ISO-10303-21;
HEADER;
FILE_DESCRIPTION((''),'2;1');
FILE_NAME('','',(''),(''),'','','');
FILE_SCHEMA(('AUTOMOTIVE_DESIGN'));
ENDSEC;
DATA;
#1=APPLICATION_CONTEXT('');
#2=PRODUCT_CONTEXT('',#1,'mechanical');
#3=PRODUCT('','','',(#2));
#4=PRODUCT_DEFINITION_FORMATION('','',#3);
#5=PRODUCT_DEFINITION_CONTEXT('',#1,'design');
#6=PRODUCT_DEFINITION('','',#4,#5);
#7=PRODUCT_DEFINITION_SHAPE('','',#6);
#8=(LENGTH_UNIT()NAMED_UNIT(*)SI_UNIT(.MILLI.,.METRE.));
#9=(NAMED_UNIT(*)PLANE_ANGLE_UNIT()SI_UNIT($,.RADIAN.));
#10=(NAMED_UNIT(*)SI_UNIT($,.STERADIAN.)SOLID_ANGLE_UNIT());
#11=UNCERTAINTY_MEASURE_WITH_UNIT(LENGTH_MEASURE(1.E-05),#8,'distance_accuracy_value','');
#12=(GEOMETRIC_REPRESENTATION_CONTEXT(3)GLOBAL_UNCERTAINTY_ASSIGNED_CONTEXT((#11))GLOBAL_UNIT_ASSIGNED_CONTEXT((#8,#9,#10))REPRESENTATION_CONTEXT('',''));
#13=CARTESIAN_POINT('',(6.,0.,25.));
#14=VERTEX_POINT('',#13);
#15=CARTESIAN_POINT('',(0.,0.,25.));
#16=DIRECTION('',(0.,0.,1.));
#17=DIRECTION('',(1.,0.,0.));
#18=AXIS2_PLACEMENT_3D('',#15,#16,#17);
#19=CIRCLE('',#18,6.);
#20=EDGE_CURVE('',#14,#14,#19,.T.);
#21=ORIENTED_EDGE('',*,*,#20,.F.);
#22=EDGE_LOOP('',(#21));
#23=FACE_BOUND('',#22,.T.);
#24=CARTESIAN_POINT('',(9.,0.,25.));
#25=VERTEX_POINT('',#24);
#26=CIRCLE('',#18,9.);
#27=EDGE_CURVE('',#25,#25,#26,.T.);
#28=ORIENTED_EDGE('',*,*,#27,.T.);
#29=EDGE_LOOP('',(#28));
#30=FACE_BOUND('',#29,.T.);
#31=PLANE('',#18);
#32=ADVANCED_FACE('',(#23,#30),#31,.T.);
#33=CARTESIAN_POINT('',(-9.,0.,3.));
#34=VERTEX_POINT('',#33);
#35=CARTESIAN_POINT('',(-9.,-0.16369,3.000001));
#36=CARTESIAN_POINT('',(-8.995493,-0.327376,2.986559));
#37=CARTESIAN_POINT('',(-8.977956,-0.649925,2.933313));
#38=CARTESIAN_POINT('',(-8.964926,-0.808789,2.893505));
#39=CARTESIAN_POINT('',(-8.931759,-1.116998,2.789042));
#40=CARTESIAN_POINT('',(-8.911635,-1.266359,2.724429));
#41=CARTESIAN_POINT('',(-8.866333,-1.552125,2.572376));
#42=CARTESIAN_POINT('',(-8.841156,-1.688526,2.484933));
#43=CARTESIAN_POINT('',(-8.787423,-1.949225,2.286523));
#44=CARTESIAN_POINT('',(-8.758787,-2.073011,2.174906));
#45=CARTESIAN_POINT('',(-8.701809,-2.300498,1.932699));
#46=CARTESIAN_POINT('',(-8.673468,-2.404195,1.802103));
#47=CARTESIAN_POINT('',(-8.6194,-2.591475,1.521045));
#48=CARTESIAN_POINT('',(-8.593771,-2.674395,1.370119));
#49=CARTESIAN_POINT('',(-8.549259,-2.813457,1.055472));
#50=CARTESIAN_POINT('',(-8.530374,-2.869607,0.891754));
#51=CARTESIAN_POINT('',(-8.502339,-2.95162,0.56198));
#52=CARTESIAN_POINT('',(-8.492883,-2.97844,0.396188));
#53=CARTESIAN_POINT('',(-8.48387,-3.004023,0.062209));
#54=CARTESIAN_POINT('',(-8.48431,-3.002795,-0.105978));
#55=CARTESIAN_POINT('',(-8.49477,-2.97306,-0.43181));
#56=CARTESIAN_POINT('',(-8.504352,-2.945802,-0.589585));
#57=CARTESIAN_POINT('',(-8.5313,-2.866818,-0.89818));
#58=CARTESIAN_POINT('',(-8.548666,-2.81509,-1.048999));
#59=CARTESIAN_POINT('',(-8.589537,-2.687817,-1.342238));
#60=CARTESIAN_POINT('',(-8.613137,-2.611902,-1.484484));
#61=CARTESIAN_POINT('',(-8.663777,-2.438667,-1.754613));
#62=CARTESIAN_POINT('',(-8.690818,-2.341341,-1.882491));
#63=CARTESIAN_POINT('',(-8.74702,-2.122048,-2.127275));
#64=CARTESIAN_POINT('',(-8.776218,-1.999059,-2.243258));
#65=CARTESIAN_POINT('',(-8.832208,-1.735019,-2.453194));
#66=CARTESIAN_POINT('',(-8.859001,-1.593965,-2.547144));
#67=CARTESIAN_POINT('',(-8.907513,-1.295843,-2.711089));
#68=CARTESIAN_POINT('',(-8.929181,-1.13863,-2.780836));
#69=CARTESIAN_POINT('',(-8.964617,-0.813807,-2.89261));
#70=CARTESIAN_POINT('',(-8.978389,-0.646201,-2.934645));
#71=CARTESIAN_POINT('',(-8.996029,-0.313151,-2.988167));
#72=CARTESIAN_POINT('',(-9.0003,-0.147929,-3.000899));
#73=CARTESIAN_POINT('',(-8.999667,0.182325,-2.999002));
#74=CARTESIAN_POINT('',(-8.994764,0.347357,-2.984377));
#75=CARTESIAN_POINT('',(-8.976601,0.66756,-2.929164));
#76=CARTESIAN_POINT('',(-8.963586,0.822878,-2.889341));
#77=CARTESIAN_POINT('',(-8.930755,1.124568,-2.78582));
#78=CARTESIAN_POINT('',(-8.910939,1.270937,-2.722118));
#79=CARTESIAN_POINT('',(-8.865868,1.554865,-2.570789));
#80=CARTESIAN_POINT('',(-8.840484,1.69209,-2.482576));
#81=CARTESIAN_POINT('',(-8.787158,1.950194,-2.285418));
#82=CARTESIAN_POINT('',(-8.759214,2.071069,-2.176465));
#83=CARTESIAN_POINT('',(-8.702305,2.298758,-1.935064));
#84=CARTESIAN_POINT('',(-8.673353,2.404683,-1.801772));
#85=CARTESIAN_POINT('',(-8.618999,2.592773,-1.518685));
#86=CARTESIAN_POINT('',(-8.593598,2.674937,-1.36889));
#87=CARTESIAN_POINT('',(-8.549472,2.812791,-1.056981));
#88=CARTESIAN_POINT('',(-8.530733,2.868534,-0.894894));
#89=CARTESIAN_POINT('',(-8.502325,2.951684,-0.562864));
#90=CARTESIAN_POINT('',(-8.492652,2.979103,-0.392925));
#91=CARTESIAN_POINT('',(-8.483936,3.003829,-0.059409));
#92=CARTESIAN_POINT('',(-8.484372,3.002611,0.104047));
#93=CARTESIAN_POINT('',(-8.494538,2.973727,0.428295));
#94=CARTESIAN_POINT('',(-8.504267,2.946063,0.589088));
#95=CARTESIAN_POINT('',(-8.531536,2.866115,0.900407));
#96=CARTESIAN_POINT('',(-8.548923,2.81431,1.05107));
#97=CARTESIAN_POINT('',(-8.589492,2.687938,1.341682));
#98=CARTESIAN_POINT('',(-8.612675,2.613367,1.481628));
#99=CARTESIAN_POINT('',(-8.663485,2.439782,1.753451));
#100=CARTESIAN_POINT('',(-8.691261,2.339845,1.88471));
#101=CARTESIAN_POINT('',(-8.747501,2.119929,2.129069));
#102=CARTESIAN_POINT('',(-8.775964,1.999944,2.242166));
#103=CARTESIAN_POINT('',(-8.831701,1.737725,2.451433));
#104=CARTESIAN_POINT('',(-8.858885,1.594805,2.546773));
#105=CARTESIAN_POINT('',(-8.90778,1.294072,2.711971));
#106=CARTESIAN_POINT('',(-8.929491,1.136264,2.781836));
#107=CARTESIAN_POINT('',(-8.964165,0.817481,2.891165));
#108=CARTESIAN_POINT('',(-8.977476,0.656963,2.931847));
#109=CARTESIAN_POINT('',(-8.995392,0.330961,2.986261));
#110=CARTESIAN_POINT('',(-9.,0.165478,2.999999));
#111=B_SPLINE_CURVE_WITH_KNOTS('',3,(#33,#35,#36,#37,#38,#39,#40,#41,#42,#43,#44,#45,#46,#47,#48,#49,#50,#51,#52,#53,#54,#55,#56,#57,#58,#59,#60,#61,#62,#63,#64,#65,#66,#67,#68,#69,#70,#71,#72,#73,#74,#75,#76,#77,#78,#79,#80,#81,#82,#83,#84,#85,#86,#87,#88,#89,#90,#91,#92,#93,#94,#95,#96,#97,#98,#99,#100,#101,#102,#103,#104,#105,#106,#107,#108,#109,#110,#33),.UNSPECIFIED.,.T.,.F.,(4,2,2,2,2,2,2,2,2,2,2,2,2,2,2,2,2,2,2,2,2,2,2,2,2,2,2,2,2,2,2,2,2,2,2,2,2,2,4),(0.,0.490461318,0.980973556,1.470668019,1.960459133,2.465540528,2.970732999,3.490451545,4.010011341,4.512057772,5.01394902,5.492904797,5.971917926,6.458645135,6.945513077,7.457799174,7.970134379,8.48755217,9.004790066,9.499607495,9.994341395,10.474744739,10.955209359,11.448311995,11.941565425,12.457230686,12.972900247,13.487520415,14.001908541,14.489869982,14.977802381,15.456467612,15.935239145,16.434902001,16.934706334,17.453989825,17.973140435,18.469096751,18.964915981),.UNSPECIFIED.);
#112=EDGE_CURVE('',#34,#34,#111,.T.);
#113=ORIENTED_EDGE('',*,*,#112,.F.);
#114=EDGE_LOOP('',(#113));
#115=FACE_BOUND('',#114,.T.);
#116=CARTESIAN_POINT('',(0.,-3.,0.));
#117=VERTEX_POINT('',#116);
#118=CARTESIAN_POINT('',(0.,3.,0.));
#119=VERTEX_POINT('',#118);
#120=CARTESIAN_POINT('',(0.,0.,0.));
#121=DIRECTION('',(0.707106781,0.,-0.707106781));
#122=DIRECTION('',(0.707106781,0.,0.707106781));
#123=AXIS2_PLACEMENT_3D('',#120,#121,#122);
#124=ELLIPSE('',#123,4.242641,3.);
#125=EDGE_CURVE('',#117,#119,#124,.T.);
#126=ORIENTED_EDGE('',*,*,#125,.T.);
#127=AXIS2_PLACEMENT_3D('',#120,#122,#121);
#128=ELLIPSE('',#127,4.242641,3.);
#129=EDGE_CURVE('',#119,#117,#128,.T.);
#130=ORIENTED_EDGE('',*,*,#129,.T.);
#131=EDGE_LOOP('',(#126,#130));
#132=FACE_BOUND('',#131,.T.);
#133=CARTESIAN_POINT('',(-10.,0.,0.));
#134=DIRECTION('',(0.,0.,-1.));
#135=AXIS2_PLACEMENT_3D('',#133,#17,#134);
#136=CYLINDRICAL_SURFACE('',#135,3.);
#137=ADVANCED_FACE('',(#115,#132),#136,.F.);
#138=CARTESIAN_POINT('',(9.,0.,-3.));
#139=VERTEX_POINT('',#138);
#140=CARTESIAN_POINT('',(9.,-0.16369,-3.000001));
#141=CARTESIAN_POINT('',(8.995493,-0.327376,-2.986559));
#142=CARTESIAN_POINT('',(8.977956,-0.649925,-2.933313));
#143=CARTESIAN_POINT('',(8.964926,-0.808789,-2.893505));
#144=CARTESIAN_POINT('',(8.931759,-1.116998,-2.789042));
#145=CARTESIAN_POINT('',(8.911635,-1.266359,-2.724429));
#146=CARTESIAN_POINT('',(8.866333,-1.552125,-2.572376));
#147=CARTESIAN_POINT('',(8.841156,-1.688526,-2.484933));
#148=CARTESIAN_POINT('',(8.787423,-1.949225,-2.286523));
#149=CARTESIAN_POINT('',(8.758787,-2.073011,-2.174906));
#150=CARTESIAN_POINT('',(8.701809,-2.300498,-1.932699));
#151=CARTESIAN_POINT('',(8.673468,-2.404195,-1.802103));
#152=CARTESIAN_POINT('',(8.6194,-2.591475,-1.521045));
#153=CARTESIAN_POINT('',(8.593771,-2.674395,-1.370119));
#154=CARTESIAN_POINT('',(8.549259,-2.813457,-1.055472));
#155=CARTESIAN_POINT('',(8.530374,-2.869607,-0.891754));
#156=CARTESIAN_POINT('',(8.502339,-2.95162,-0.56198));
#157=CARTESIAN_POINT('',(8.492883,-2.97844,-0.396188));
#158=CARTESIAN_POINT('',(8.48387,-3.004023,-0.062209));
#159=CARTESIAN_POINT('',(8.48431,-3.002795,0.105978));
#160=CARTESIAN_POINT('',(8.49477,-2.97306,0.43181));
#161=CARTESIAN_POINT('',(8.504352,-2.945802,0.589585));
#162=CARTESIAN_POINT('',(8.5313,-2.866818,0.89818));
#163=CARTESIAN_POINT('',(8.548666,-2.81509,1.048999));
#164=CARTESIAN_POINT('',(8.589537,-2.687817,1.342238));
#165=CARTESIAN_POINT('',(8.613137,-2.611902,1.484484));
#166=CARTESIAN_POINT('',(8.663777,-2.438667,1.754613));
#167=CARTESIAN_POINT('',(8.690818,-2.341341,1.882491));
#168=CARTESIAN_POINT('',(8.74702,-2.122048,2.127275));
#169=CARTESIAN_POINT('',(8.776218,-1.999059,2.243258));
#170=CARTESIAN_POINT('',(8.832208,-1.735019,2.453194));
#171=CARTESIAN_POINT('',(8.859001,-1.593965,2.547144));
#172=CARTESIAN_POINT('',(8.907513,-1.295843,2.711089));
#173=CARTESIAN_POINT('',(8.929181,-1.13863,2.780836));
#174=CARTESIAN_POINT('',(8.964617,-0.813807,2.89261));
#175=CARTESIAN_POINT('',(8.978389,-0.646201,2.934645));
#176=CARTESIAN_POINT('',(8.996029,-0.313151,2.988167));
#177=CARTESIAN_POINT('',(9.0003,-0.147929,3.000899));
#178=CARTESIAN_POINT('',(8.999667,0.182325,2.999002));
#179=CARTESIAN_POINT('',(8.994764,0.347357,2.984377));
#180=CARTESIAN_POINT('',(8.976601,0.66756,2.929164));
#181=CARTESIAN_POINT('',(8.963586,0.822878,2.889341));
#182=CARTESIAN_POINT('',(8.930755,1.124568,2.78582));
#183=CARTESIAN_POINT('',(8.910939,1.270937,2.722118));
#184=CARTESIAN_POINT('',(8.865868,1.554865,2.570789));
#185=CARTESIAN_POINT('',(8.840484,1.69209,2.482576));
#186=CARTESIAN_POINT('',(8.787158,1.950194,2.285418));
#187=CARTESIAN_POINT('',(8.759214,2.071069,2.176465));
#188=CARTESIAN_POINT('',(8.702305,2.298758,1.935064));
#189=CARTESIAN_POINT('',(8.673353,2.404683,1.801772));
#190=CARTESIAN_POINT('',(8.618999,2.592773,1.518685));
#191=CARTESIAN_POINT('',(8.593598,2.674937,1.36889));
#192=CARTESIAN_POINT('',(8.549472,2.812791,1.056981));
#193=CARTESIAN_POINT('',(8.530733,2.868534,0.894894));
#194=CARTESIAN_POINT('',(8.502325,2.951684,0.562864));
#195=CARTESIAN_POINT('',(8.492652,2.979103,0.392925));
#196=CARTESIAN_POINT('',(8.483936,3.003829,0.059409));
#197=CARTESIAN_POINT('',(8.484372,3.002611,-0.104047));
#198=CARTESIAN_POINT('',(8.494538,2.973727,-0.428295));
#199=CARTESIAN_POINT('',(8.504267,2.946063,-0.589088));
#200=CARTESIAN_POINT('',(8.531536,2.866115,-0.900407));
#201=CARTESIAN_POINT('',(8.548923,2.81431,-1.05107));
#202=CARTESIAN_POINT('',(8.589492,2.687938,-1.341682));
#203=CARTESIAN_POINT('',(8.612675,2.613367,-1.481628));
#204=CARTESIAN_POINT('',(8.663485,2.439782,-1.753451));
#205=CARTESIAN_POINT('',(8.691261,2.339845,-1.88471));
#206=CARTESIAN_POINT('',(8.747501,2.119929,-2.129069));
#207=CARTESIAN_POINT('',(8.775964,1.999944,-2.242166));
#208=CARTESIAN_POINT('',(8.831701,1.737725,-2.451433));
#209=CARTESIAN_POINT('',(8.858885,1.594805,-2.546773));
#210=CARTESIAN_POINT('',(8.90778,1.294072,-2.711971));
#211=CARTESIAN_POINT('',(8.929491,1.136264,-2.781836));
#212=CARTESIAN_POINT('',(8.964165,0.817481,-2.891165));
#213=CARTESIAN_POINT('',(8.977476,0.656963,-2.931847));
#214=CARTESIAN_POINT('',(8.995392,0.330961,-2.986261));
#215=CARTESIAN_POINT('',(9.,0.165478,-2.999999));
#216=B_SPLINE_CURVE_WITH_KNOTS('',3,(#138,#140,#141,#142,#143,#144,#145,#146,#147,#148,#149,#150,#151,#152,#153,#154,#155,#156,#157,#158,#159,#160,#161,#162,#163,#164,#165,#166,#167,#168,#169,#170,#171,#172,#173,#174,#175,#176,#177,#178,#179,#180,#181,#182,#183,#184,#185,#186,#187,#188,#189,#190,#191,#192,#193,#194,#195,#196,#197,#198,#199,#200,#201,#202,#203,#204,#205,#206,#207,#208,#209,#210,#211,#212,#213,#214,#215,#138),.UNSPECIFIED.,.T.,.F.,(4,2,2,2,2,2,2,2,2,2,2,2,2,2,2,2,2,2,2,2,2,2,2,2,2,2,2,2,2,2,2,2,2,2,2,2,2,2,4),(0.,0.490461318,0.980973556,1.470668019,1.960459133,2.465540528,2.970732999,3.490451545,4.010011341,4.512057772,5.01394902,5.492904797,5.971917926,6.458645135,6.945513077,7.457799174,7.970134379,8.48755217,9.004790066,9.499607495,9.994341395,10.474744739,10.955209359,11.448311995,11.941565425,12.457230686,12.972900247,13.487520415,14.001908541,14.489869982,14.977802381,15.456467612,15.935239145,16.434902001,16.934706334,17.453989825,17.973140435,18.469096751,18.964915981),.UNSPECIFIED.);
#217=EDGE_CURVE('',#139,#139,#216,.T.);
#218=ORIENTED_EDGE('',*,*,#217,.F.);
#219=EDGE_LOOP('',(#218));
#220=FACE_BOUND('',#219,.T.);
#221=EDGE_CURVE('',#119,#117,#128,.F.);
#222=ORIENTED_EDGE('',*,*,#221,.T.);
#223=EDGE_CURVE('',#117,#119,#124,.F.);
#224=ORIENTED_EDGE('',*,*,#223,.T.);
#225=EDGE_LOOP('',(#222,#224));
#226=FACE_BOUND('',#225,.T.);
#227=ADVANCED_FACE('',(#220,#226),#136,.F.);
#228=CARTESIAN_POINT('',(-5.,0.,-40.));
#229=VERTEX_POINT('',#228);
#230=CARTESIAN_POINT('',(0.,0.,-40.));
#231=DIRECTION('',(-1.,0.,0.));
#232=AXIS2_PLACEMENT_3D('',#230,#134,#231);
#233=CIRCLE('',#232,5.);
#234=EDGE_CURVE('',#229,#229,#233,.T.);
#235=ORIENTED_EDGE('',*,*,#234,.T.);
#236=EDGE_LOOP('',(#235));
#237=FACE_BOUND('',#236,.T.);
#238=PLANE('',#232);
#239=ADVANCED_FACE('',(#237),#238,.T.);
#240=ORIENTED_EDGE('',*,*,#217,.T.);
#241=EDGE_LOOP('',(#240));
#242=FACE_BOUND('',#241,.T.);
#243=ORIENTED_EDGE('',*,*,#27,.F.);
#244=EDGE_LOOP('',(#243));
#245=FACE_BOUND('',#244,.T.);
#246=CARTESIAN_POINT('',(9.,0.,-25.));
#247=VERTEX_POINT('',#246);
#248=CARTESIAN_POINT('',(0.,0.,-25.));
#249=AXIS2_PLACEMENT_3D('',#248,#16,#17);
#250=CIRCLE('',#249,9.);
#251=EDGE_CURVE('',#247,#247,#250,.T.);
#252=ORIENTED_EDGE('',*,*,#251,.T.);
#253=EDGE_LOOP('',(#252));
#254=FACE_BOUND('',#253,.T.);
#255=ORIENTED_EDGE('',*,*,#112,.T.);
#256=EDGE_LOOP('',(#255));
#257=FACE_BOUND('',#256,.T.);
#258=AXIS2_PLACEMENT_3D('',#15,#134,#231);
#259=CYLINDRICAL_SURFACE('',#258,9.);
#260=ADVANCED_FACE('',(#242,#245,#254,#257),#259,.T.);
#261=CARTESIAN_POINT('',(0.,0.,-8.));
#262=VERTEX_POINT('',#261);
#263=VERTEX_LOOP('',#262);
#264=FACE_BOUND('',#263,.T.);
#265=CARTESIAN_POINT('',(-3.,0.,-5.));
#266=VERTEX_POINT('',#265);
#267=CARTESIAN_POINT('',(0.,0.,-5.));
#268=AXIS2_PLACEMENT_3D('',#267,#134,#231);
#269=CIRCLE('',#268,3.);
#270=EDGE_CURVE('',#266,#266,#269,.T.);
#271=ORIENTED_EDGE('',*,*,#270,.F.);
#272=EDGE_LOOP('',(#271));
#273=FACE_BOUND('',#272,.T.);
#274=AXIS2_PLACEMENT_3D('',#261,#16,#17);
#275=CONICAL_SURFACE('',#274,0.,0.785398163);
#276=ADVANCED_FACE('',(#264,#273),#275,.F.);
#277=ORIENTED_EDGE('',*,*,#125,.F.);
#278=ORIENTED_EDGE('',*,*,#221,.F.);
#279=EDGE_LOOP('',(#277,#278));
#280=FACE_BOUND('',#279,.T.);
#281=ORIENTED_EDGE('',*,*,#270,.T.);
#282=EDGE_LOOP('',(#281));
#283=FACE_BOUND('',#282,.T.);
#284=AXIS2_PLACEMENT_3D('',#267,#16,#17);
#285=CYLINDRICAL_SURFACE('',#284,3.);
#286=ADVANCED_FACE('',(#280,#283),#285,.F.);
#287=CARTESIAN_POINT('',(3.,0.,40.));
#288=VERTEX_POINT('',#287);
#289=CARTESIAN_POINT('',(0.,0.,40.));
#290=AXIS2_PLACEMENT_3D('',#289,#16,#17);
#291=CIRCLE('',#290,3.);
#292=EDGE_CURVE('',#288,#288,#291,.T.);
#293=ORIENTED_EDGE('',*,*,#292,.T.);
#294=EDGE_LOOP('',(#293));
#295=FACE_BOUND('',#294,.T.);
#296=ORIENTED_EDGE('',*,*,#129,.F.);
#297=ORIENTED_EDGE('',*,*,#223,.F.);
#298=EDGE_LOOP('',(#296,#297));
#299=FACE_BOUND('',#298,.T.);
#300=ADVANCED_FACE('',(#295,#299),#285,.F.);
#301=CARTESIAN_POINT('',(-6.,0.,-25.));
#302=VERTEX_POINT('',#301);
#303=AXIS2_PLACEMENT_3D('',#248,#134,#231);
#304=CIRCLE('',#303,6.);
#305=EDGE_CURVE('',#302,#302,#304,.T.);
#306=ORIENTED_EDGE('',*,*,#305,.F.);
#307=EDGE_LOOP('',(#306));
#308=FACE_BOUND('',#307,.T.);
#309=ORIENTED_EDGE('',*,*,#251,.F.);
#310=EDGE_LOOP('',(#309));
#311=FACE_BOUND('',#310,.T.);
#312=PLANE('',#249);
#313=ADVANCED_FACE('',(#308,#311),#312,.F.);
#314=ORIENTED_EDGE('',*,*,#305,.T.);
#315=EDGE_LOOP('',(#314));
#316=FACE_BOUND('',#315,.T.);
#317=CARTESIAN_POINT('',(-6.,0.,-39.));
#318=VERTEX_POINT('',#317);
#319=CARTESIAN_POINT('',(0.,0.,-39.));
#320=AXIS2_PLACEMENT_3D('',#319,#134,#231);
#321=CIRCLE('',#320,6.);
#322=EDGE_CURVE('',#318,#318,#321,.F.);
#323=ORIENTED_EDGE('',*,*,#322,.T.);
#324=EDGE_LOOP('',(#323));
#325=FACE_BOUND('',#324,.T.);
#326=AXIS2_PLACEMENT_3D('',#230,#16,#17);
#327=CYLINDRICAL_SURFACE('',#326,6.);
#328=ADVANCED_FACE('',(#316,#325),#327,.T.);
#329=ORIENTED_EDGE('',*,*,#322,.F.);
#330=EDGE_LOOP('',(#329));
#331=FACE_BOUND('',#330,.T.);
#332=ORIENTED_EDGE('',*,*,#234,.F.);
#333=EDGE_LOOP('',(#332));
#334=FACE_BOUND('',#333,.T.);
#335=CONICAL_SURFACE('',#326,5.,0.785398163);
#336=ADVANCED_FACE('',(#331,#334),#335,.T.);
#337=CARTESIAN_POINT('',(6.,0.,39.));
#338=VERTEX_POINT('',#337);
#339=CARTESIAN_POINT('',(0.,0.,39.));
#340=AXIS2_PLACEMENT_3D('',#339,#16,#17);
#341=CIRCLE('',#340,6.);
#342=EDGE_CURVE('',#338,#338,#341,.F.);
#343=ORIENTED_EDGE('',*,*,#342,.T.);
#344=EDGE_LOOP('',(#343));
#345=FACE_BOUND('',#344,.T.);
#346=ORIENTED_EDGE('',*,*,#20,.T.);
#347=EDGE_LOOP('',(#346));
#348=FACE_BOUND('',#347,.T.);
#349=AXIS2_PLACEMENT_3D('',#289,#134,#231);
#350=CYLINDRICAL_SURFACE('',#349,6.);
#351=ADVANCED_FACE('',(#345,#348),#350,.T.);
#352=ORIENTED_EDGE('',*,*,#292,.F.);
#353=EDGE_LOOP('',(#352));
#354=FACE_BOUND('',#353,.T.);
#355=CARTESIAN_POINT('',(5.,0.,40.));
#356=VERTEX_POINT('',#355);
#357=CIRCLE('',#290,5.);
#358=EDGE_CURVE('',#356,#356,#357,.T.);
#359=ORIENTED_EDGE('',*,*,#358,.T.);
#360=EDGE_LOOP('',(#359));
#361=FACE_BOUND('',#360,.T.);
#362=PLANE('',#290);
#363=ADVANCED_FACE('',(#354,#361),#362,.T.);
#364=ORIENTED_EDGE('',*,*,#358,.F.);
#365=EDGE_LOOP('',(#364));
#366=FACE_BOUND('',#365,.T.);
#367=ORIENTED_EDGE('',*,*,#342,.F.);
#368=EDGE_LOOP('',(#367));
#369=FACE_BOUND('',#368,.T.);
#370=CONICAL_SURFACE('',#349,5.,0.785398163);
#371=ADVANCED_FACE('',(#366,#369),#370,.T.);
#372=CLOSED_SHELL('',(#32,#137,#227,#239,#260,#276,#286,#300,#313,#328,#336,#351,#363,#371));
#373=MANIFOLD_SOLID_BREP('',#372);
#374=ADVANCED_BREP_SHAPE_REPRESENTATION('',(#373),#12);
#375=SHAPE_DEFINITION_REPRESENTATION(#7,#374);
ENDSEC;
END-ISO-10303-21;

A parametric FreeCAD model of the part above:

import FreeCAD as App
import Part
import Sketcher

V = App.Vector


def edges_at(feature, points):
    """Names of the edges that pass closest to the given points."""
    edges = feature.Shape.Edges
    near = lambda p: min(range(len(edges)), key=lambda i: edges[i].distToShape(Part.Vertex(*p))[0])
    return sorted({f"Edge{near(p) + 1}" for p in points})

doc = App.newDocument("Part")
body = doc.addObject("PartDesign::Body", "Body")

sketch1 = body.newObject("Sketcher::SketchObject", "Sketch")
sketch1.AttachmentSupport = (doc.getObject("XY_Plane"), [""])
sketch1.MapMode = "FlatFace"
sketch1.addGeometry(Part.Circle(V(0, 0, 0), V(0, 0, 1), 9), False)
sketch1.addConstraint(Sketcher.Constraint("Coincident", 0, 3, -1, 1))
sketch1.addConstraint(Sketcher.Constraint("Diameter", 0, 18.0))
pad1 = body.newObject("PartDesign::Pad", "Pad")
pad1.Profile = sketch1
pad1.Length = 50
pad1.Midplane = True

sketch2 = body.newObject("Sketcher::SketchObject", "Sketch001")
sketch2.AttachmentSupport = (doc.getObject("XY_Plane"), [""])
sketch2.MapMode = "FlatFace"
sketch2.AttachmentOffset = App.Placement(V(0, 0, 25), App.Rotation())
sketch2.addGeometry(Part.Circle(V(0, 0, 0), V(0, 0, 1), 6), False)
sketch2.addConstraint(Sketcher.Constraint("Coincident", 0, 3, -1, 1))
sketch2.addConstraint(Sketcher.Constraint("Diameter", 0, 12.0))
pad2 = body.newObject("PartDesign::Pad", "Pad001")
pad2.Profile = sketch2
pad2.Length = 15

sketch3 = body.newObject("Sketcher::SketchObject", "Sketch002")
sketch3.AttachmentSupport = (doc.getObject("XY_Plane"), [""])
sketch3.MapMode = "FlatFace"
sketch3.AttachmentOffset = App.Placement(V(0, 0, -40), App.Rotation())
sketch3.addGeometry(Part.Circle(V(0, 0, 0), V(0, 0, 1), 6), False)
sketch3.addConstraint(Sketcher.Constraint("Coincident", 0, 3, -1, 1))
sketch3.addConstraint(Sketcher.Constraint("Diameter", 0, 12.0))
pad3 = body.newObject("PartDesign::Pad", "Pad002")
pad3.Profile = sketch3
pad3.Length = 15

sketch4 = body.newObject("Sketcher::SketchObject", "Sketch003")
sketch4.AttachmentSupport = (doc.getObject("YZ_Plane"), [""])
sketch4.MapMode = "FlatFace"
sketch4.addGeometry(Part.Circle(V(0, 0, 0), V(0, 0, 1), 3), False)
sketch4.addConstraint(Sketcher.Constraint("Coincident", 0, 3, -1, 1))
sketch4.addConstraint(Sketcher.Constraint("Diameter", 0, 6.0))
pocket1 = body.newObject("PartDesign::Pocket", "Pocket")
pocket1.Profile = sketch4
pocket1.Length = 20
pocket1.Midplane = True

sketch5 = body.newObject("Sketcher::SketchObject", "Sketch004")
sketch5.AttachmentSupport = (doc.getObject("XY_Plane"), [""])
sketch5.MapMode = "FlatFace"
sketch5.AttachmentOffset = App.Placement(V(0, 0, 40), App.Rotation())
sketch5.addGeometry(Part.Circle(V(0, 0, 0), V(0, 0, 1), 3), False)
sketch5.addConstraint(Sketcher.Constraint("Coincident", 0, 3, -1, 1))
sketch5.addConstraint(Sketcher.Constraint("Diameter", 0, 6.0))
pocket2 = body.newObject("PartDesign::Pocket", "Pocket001")
pocket2.Profile = sketch5
pocket2.Length = 45

sketch6 = body.newObject("Sketcher::SketchObject", "Sketch005")
sketch6.AttachmentSupport = (doc.getObject("XZ_Plane"), [""])
sketch6.MapMode = "FlatFace"
sketch6.addGeometry(Part.LineSegment(V(0, -8, 0), V(-3, -5, 0)), False)
sketch6.addGeometry(Part.LineSegment(V(-3, -5, 0), V(0, -5, 0)), False)
sketch6.addGeometry(Part.LineSegment(V(0, -5, 0), V(0, -8, 0)), False)
sketch6.addConstraint(Sketcher.Constraint("Coincident", 0, 2, 1, 1))
sketch6.addConstraint(Sketcher.Constraint("Coincident", 1, 2, 2, 1))
sketch6.addConstraint(Sketcher.Constraint("Coincident", 2, 2, 0, 1))
sketch6.addConstraint(Sketcher.Constraint("Horizontal", 1))
sketch6.addConstraint(Sketcher.Constraint("Vertical", 2))
sketch6.addConstraint(Sketcher.Constraint("PointOnObject", 1, 2, -2))
sketch6.addConstraint(Sketcher.Constraint("Equal", 1, 2))
sketch6.addConstraint(Sketcher.Constraint("DistanceX", 1, 1, 1, 2, 3.0))
sketch6.addConstraint(Sketcher.Constraint("DistanceY", 0, 2, -1, 1, 5.0))
groove = body.newObject("PartDesign::Groove", "Groove")
groove.Profile = sketch6
groove.ReferenceAxis = (sketch6, ["V_Axis"])
groove.Angle = 360
doc.recompute()

chamfer = body.newObject("PartDesign::Chamfer", "Chamfer")
chamfer.Base = (groove, edges_at(groove, [(-6, 0, 40)]))
chamfer.Size = 1
doc.recompute()

chamfer2 = body.newObject("PartDesign::Chamfer", "Chamfer001")
chamfer2.Base = (chamfer, edges_at(chamfer, [(-6, 0, -40)]))
chamfer2.Size = 1

doc.recompute()
